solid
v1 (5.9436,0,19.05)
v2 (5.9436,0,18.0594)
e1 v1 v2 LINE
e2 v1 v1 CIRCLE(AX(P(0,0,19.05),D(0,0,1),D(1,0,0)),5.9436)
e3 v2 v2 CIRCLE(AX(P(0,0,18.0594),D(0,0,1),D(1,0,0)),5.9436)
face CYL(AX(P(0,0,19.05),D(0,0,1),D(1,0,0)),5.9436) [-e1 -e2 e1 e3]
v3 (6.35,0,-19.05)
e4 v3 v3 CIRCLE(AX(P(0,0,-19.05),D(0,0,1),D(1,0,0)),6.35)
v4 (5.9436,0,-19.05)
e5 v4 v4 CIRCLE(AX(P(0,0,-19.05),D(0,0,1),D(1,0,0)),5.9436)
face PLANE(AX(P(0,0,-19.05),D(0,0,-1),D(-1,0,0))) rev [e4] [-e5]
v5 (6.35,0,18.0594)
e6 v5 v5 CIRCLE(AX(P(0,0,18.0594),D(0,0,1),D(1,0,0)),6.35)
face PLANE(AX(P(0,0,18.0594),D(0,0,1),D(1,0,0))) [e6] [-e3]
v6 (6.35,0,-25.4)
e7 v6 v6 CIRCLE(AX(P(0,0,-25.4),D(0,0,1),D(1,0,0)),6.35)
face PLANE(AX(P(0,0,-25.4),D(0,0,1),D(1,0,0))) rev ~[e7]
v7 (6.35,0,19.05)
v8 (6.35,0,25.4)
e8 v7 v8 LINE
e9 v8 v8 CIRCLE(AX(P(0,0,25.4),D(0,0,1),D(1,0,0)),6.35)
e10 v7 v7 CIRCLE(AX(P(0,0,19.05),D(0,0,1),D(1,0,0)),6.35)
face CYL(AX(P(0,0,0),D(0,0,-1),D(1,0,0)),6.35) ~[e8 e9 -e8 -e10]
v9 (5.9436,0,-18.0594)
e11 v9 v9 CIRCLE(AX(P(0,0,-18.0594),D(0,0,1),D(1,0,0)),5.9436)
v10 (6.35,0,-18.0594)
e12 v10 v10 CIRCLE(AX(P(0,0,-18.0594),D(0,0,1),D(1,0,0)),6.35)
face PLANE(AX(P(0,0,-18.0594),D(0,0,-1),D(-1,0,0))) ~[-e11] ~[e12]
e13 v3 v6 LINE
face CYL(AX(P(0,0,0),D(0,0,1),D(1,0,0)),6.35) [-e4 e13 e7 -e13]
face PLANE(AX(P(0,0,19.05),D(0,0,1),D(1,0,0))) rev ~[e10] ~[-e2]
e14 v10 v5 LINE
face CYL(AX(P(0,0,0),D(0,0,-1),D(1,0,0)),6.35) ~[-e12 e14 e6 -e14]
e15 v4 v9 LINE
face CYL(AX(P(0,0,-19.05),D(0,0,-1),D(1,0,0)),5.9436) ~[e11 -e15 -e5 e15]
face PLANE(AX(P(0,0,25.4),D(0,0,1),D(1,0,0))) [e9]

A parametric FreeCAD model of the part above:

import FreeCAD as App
import Part
import Sketcher
from FreeCAD import Vector
Q = App.Units.Quantity

doc = App.newDocument("Part")
params = doc.addObject("Spreadsheet::Sheet", "Params")
for row, (alias, value) in enumerate([
    ("sketch1_diameter", "0.5 in"),
    ("pad1_length", "2 in"),
    ("sketch2_diameter", "0.5 in"),
    ("sketch2_diameter2", "0.468 in"),
    ("pocket1_length", "0.039 in"),
], start=1):
    params.set(f"A{row}", alias)
    params.set(f"B{row}", "=" + value)
    params.setAlias(f"B{row}", alias)

body = doc.addObject("PartDesign::Body", "Body")

# Sketch on XY plane
sketch1 = doc.addObject("Sketcher::SketchObject", "Sketch")
body.addObject(sketch1)
sketch1.AttachmentSupport = (doc.XY_Plane, [""])
sketch1.MapMode = "FlatFace"
sketch1.addGeometry(Part.Circle(Vector(0, 0, 0), Vector(0, 0, 1), 6), False)
sketch1.addConstraint([
    Sketcher.Constraint("Coincident", 0, 3, -1, 1),
    Sketcher.Constraint("Diameter", 0, Q("0.5 in")),
])
sketch1.setExpression("Constraints[1]", "Params.sketch1_diameter")
pad1 = doc.addObject("PartDesign::Pad", "Pad")
body.addObject(pad1)
pad1.Profile = sketch1
pad1.setExpression("Length", "Params.pad1_length")
pad1.Midplane = True

# Sketch on XY plane
sketch2 = doc.addObject("Sketcher::SketchObject", "Sketch001")
body.addObject(sketch2)
sketch2.AttachmentSupport = (doc.XY_Plane, [""])
sketch2.MapMode = "FlatFace"
sketch2.AttachmentOffset = App.Placement(Vector(0, 0, 0.75 * 25.4), App.Rotation())
sketch2.addGeometry([
    Part.Circle(Vector(0, 0, 0), Vector(0, 0, 1), 6),
    Part.Circle(Vector(0, 0, 0), Vector(0, 0, 1), 6),
], False)
sketch2.addConstraint([
    Sketcher.Constraint("Coincident", 0, 3, -1, 1),
    Sketcher.Constraint("Coincident", 1, 3, -1, 1),
    Sketcher.Constraint("Diameter", 0, Q("0.5 in")),
    Sketcher.Constraint("Diameter", 1, Q("0.468 in")),
])
sketch2.setExpression("Constraints[2]", "Params.sketch2_diameter")
sketch2.setExpression("Constraints[3]", "Params.sketch2_diameter2")
pocket1 = doc.addObject("PartDesign::Pocket", "Pocket")
body.addObject(pocket1)
pocket1.Profile = sketch2
pocket1.setExpression("Length", "Params.pocket1_length")
doc.recompute()

mirrored = doc.addObject("PartDesign::Mirrored", "Mirrored")
body.addObject(mirrored)
mirrored.Originals = [pocket1]
mirrored.MirrorPlane = (doc.XY_Plane, [""])
body.Tip = mirrored

doc.recompute()
